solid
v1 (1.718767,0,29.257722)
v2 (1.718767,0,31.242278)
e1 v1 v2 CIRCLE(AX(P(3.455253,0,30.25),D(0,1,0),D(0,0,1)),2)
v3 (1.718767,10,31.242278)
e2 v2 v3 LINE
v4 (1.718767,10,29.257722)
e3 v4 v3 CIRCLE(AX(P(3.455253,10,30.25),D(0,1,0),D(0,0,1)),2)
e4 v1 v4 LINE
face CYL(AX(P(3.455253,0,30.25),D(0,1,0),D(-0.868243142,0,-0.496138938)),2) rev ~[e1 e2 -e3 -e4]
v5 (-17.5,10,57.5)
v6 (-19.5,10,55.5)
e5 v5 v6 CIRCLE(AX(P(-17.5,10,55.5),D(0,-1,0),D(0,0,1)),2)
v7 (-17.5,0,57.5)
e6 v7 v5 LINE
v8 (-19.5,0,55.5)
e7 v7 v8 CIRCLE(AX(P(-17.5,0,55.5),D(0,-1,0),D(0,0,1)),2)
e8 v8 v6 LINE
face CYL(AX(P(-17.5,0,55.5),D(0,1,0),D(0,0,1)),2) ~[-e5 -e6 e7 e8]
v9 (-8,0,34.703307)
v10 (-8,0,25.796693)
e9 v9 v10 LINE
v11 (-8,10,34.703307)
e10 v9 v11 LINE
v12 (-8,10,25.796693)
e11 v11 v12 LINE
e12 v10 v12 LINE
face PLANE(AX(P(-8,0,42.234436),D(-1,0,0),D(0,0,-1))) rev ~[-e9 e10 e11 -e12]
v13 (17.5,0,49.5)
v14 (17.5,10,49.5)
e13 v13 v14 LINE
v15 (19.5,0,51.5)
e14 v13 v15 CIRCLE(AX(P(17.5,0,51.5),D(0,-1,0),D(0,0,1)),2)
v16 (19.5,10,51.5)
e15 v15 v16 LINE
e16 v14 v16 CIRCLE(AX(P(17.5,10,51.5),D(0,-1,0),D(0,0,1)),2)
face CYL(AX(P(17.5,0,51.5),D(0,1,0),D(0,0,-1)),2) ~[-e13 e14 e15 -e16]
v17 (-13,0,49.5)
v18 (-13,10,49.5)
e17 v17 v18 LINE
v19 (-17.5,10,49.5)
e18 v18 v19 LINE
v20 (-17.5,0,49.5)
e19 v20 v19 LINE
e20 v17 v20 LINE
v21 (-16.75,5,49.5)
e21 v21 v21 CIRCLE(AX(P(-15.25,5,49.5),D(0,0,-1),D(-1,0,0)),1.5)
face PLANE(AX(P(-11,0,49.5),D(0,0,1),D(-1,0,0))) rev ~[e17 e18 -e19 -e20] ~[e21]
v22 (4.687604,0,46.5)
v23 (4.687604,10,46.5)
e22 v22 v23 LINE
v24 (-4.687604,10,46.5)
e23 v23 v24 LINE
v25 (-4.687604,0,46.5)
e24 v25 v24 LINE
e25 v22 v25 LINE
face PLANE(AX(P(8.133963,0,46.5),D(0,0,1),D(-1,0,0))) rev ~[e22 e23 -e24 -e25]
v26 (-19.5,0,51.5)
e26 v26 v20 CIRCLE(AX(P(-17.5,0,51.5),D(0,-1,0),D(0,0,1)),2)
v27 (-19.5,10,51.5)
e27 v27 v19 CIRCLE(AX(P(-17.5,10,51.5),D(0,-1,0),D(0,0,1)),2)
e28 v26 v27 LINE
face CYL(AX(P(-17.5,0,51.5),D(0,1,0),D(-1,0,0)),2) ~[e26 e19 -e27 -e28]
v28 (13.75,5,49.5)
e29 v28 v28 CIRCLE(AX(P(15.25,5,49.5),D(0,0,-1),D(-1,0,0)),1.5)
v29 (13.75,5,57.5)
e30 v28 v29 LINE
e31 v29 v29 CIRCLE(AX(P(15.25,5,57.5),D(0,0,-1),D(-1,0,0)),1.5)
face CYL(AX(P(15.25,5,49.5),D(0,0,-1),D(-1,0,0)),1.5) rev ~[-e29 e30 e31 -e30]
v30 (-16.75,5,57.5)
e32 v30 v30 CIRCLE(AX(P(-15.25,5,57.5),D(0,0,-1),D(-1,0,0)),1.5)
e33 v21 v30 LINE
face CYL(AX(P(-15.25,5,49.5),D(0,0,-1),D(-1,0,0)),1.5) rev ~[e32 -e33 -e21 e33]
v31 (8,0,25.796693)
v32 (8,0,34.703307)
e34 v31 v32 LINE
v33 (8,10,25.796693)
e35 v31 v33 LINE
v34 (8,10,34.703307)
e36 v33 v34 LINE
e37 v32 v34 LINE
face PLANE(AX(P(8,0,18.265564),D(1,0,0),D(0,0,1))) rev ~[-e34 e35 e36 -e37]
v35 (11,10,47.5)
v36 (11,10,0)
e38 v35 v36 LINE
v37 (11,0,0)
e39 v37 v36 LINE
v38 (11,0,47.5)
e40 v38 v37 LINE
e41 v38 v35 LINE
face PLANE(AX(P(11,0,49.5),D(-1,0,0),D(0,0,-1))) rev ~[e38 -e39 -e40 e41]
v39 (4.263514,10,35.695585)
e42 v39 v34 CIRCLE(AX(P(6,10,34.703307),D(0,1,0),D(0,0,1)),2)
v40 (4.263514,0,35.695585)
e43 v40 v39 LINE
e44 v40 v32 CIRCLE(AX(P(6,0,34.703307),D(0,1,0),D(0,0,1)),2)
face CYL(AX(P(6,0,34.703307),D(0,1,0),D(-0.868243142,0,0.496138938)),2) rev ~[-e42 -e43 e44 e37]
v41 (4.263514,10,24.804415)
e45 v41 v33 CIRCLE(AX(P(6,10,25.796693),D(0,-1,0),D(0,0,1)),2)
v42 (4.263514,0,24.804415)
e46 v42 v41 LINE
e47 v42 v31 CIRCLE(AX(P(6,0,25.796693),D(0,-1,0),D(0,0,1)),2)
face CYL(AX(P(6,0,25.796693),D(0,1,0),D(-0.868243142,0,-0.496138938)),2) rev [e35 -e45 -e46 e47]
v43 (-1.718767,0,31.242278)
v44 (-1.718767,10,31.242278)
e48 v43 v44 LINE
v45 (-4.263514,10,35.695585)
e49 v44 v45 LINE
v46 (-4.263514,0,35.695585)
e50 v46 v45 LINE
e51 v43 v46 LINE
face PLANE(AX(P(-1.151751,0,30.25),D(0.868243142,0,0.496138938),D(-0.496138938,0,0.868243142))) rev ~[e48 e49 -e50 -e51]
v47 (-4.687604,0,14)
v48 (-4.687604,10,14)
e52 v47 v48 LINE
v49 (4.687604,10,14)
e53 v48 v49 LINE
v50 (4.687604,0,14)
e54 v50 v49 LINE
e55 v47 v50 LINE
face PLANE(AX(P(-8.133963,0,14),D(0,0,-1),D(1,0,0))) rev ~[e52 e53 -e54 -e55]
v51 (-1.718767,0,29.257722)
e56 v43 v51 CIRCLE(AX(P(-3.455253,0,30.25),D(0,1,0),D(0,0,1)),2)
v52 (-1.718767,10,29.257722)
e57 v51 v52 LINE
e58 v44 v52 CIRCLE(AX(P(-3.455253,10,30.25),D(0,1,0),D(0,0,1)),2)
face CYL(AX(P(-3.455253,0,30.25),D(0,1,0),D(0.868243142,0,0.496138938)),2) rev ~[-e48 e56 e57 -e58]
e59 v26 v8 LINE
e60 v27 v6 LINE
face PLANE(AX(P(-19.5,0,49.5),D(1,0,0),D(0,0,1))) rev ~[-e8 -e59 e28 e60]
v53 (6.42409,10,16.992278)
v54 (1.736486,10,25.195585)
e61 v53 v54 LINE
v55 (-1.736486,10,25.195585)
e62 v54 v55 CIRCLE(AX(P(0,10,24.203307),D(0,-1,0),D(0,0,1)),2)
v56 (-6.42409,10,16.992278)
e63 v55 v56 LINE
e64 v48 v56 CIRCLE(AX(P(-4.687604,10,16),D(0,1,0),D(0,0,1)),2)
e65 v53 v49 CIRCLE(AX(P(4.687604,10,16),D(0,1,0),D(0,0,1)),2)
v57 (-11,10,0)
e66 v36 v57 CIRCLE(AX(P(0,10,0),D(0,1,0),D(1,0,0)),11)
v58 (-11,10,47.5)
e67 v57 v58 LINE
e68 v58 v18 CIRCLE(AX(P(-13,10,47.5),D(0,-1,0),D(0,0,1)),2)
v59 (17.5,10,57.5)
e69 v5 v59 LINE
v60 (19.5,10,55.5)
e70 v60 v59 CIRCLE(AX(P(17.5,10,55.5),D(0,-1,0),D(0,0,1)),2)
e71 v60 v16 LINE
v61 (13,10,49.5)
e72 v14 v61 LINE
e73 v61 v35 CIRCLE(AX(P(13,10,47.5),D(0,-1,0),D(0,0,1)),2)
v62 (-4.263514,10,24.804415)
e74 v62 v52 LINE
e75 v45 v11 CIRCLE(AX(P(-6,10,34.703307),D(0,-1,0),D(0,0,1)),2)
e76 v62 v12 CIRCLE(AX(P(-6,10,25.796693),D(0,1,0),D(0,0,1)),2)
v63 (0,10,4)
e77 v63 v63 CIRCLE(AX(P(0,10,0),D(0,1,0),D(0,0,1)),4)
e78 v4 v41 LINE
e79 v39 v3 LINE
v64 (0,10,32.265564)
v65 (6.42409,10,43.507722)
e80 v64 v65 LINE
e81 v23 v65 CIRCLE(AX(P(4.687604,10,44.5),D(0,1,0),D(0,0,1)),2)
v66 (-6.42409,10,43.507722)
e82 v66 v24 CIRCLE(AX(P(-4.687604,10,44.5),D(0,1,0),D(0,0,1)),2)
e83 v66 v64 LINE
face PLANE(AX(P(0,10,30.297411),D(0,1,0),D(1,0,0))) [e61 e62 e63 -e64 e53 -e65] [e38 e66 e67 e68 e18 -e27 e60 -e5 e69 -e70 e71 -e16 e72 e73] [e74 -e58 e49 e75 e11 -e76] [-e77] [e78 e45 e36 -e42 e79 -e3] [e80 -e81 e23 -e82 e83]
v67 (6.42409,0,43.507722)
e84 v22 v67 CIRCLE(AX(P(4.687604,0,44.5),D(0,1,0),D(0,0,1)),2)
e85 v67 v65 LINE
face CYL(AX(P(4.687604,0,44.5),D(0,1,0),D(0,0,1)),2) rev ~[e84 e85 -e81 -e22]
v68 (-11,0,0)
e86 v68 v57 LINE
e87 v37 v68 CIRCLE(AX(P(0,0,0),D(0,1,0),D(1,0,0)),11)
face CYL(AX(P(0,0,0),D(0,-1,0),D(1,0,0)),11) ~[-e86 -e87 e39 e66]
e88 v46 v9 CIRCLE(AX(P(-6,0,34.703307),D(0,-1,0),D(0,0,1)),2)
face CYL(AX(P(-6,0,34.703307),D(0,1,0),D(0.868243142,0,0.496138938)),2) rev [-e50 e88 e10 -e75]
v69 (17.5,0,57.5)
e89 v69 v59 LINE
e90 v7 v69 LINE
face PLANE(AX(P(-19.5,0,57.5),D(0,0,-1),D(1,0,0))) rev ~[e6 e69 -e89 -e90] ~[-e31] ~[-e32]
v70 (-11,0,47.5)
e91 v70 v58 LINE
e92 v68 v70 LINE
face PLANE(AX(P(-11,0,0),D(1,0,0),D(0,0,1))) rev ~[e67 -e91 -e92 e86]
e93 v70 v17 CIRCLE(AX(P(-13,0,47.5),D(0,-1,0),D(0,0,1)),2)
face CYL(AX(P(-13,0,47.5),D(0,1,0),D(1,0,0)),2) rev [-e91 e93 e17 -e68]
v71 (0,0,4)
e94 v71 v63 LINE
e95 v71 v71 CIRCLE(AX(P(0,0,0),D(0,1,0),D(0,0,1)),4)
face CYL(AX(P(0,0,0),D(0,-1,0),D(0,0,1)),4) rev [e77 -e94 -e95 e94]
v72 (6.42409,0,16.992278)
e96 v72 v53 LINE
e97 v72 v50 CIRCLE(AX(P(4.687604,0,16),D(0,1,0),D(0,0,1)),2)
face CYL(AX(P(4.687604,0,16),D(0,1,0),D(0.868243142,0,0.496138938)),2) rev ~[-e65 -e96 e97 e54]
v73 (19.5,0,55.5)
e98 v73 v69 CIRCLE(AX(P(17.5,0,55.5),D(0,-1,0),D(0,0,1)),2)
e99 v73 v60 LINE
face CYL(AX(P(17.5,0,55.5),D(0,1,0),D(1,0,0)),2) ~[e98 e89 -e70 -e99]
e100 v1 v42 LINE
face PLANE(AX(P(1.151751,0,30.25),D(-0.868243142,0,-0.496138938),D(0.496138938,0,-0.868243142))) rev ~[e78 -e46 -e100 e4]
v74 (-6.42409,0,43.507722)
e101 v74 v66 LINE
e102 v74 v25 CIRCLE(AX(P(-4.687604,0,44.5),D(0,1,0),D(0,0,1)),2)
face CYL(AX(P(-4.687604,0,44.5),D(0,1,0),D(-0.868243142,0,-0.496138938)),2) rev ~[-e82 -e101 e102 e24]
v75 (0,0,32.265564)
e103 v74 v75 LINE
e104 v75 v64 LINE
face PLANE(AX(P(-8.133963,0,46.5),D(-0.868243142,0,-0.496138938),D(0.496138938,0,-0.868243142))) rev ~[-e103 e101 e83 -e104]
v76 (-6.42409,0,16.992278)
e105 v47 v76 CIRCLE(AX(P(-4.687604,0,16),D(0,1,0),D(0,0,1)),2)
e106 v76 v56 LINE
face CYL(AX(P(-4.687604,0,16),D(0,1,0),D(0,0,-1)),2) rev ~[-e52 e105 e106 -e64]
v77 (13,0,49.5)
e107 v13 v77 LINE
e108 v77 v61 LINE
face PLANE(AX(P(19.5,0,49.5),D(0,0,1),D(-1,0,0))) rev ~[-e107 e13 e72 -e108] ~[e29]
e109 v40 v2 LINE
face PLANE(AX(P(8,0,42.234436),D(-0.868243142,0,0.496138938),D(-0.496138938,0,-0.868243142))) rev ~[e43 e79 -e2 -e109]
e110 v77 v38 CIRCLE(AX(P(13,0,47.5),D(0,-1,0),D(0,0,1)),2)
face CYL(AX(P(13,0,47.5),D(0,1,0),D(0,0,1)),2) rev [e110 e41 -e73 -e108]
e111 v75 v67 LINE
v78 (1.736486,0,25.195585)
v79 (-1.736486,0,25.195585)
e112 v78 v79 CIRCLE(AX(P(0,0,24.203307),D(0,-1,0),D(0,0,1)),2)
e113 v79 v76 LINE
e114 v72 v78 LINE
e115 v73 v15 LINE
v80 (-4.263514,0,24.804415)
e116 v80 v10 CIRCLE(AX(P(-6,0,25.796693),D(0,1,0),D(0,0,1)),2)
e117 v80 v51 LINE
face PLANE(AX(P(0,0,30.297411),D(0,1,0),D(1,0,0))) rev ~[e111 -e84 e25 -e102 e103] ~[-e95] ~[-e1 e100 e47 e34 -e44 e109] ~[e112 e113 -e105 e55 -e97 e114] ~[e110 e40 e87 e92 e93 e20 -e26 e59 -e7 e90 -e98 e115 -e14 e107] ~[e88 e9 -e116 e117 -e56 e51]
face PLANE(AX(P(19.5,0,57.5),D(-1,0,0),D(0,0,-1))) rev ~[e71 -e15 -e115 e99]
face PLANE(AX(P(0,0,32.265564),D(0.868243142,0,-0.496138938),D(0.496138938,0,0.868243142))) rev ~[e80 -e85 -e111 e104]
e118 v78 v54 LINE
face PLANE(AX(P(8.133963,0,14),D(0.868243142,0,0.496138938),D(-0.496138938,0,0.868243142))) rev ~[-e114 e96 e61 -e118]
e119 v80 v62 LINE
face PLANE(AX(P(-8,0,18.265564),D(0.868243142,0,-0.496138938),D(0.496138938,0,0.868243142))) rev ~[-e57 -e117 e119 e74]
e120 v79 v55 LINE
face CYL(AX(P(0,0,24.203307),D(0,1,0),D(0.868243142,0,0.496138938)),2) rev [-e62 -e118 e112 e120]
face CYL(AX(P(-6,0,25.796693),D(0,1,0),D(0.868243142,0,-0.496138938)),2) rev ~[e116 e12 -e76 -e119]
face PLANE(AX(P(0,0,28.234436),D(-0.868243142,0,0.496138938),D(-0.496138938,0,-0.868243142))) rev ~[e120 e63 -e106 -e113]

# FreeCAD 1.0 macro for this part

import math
import FreeCAD as App
import Part
import Sketcher
from FreeCAD import Vector


def edges_at(feature, points):
    """Names of the edges that pass closest to the given points."""
    edges = feature.Shape.Edges
    near = lambda p: min(range(len(edges)), key=lambda i: edges[i].distToShape(Part.Vertex(*p))[0])
    return sorted({f"Edge{near(p) + 1}" for p in points})


def add_polygon(sketch, points):
    """Adds a closed chain of lines whose ends are joined by coincident constraints."""
    first, n = sketch.GeometryCount, len(points)
    for a, b in zip(points, points[1:] + points[:1]):
        sketch.addGeometry(Part.LineSegment(App.Vector(*a, 0), App.Vector(*b, 0)), False)
    for i in range(n):
        sketch.addConstraint(Sketcher.Constraint("Coincident", first + i, 2, first + (i + 1) % n, 1))

doc = App.newDocument("Part")
body = doc.addObject("PartDesign::Body", "Body")

# Sketch on XZ plane
sketch1 = body.newObject("Sketcher::SketchObject", "Sketch")
sketch1.AttachmentSupport = (doc.getObject("XZ_Plane"), [""])
sketch1.MapMode = "FlatFace"
sketch1.addGeometry(Part.LineSegment(Vector(19.5, 49.5, 0), Vector(11, 49.5, 0)), False)  # 0
sketch1.addGeometry(Part.LineSegment(Vector(11, 49.5, 0), Vector(11, 0, 0)), False)  # 1
sketch1.addGeometry(Part.ArcOfCircle(Part.Circle(Vector(0, 0, 0), Vector(0, 0, 1), 11), math.radians(180), math.radians(360)), False)  # 2
sketch1.addGeometry(Part.LineSegment(Vector(-11, 0, 0), Vector(-11, 49.5, 0)), False)  # 3
sketch1.addGeometry(Part.LineSegment(Vector(-11, 49.5, 0), Vector(-19.5, 49.5, 0)), False)  # 4
sketch1.addGeometry(Part.LineSegment(Vector(-19.5, 49.5, 0), Vector(-19.5, 57.5, 0)), False)  # 5
sketch1.addGeometry(Part.LineSegment(Vector(-19.5, 57.5, 0), Vector(19.5, 57.5, 0)), False)  # 6
sketch1.addGeometry(Part.LineSegment(Vector(19.5, 57.5, 0), Vector(19.5, 49.5, 0)), False)  # 7
add_polygon(sketch1, [(-1.2, 30.2), (-8, 42.2), (-8, 18.3)])  # lines 8-10
add_polygon(sketch1, [(-8.1, 46.5), (0, 32.3), (8.1, 46.5)])  # lines 11-13
add_polygon(sketch1, [(1.2, 30.2), (8, 18.3), (8, 42.2)])  # lines 14-16
add_polygon(sketch1, [(8.1, 14), (0, 28.2), (-8.1, 14)])  # lines 17-19
sketch1.addGeometry(Part.Circle(Vector(0, 0, 0), Vector(0, 0, 1), 4), False)  # 20
sketch1.addConstraint(Sketcher.Constraint("Coincident", 0, 2, 1, 1))
sketch1.addConstraint(Sketcher.Constraint("Tangent", 1, 2, 2, 2))
sketch1.addConstraint(Sketcher.Constraint("Tangent", 2, 1, 3, 1))
sketch1.addConstraint(Sketcher.Constraint("Coincident", 3, 2, 4, 1))
sketch1.addConstraint(Sketcher.Constraint("Coincident", 4, 2, 5, 1))
sketch1.addConstraint(Sketcher.Constraint("Coincident", 5, 2, 6, 1))
sketch1.addConstraint(Sketcher.Constraint("Coincident", 6, 2, 7, 1))
sketch1.addConstraint(Sketcher.Constraint("Coincident", 7, 2, 0, 1))
sketch1.addConstraint(Sketcher.Constraint("Horizontal", 0))
sketch1.addConstraint(Sketcher.Constraint("Vertical", 1))
sketch1.addConstraint(Sketcher.Constraint("Vertical", 3))
sketch1.addConstraint(Sketcher.Constraint("Horizontal", 4))
sketch1.addConstraint(Sketcher.Constraint("Vertical", 5))
sketch1.addConstraint(Sketcher.Constraint("Horizontal", 6))
sketch1.addConstraint(Sketcher.Constraint("Vertical", 7))
sketch1.addConstraint(Sketcher.Constraint("Vertical", 9))
sketch1.addConstraint(Sketcher.Constraint("Horizontal", 13))
sketch1.addConstraint(Sketcher.Constraint("Vertical", 15))
sketch1.addConstraint(Sketcher.Constraint("Horizontal", 19))
sketch1.addConstraint(Sketcher.Constraint("Coincident", 2, 3, -1, 1))
sketch1.addConstraint(Sketcher.Constraint("Coincident", 20, 3, -1, 1))
sketch1.addConstraint(Sketcher.Constraint("Symmetric", 4, 2, 7, 2, -2))
sketch1.addConstraint(Sketcher.Constraint("Symmetric", 9, 2, 14, 2, -2))
sketch1.addConstraint(Sketcher.Constraint("Symmetric", 10, 2, 16, 2, -2))
sketch1.addConstraint(Sketcher.Constraint("PointOnObject", 11, 2, -2))
sketch1.addConstraint(Sketcher.Constraint("PointOnObject", 17, 2, -2))
sketch1.addConstraint(Sketcher.Constraint("Parallel", 8, 11))
sketch1.addConstraint(Sketcher.Constraint("Parallel", 10, 12))
sketch1.addConstraint(Sketcher.Constraint("Parallel", 11, 14))
sketch1.addConstraint(Sketcher.Constraint("Parallel", 12, 16))
sketch1.addConstraint(Sketcher.Constraint("Parallel", 14, 17))
sketch1.addConstraint(Sketcher.Constraint("Parallel", 16, 18))
sketch1.addConstraint(Sketcher.Constraint("Vertical", 13, 2, 18, 2))
sketch1.addConstraint(Sketcher.Constraint("Diameter", 20, 8.0))
sketch1.addConstraint(Sketcher.Constraint("Radius", 2, 11.0))
sketch1.addConstraint(Sketcher.Constraint("DistanceX", 6, 1, 6, 2, 39.0))
sketch1.addConstraint(Sketcher.Constraint("DistanceY", 5, 1, 5, 2, 8.0))
sketch1.addConstraint(Sketcher.Constraint("DistanceY", 1, 2, 1, 1, 49.5))
sketch1.addConstraint(Sketcher.Constraint("DistanceX", 8, 2, -1, 1, 8.0))
sketch1.addConstraint(Sketcher.Constraint("DistanceY", -1, 1, 18, 2, 14.0))
sketch1.addConstraint(Sketcher.Constraint("DistanceY", 9, 2, 11, 2, 14.0))
sketch1.addConstraint(Sketcher.Constraint("DistanceY", 12, 2, 0, 2, 3.0))
sketch1.addConstraint(Sketcher.Constraint("DistanceY", -1, 1, 10, 2, 30.25))
sketch1.addConstraint(Sketcher.Constraint("DistanceY", 9, 2, 9, 1, 23.968871))
sketch1.addConstraint(Sketcher.Constraint("DistanceX", 13, 2, 13, 1, 16.267926))
pad1 = body.newObject("PartDesign::Pad", "Pad")
pad1.Profile = sketch1
pad1.Length = 10
pad1.Reversed = True
doc.recompute()

fillet = body.newObject("PartDesign::Fillet", "Fillet")
fillet.Base = (pad1, edges_at(pad1, [
    (8.134, 5, 14),
    (-8.134, 5, 14),
    (0, 5, 28.234),
    (8, 5, 18.266),
    (1.152, 5, 30.25),
    (8, 5, 42.234),
    (-1.152, 5, 30.25),
    (-8, 5, 18.266),
    (-8, 5, 42.234),
    (8.134, 5, 46.5),
    (-8.134, 5, 46.5),
    (11, 5, 49.5),
    (19.5, 5, 49.5),
    (19.5, 5, 57.5),
    (-19.5, 5, 57.5),
    (-19.5, 5, 49.5),
    (-11, 5, 49.5),
]))
fillet.Radius = 2

# Sketch on XY plane
sketch2 = body.newObject("Sketcher::SketchObject", "Sketch001")
sketch2.AttachmentSupport = (doc.getObject("XY_Plane"), [""])
sketch2.MapMode = "FlatFace"
sketch2.AttachmentOffset = App.Placement(Vector(0, 0, 49.5), App.Rotation())
sketch2.addGeometry(Part.Circle(Vector(15.2, 5, 0), Vector(0, 0, 1), 1.5), False)
sketch2.addGeometry(Part.Circle(Vector(-15.2, 5, 0), Vector(0, 0, 1), 1.5), False)
sketch2.addConstraint(Sketcher.Constraint("Equal", 0, 1))
sketch2.addConstraint(Sketcher.Constraint("Symmetric", 0, 3, 1, 3, -2))
sketch2.addConstraint(Sketcher.Constraint("Diameter", 0, 3.0))
sketch2.addConstraint(Sketcher.Constraint("DistanceY", -1, 1, 0, 3, 5.0))
sketch2.addConstraint(Sketcher.Constraint("DistanceX", 1, 3, 0, 3, 30.5))
pocket1 = body.newObject("PartDesign::Pocket", "Pocket")
pocket1.Profile = sketch2
pocket1.Type = "ThroughAll"
pocket1.Reversed = True

doc.recompute()
